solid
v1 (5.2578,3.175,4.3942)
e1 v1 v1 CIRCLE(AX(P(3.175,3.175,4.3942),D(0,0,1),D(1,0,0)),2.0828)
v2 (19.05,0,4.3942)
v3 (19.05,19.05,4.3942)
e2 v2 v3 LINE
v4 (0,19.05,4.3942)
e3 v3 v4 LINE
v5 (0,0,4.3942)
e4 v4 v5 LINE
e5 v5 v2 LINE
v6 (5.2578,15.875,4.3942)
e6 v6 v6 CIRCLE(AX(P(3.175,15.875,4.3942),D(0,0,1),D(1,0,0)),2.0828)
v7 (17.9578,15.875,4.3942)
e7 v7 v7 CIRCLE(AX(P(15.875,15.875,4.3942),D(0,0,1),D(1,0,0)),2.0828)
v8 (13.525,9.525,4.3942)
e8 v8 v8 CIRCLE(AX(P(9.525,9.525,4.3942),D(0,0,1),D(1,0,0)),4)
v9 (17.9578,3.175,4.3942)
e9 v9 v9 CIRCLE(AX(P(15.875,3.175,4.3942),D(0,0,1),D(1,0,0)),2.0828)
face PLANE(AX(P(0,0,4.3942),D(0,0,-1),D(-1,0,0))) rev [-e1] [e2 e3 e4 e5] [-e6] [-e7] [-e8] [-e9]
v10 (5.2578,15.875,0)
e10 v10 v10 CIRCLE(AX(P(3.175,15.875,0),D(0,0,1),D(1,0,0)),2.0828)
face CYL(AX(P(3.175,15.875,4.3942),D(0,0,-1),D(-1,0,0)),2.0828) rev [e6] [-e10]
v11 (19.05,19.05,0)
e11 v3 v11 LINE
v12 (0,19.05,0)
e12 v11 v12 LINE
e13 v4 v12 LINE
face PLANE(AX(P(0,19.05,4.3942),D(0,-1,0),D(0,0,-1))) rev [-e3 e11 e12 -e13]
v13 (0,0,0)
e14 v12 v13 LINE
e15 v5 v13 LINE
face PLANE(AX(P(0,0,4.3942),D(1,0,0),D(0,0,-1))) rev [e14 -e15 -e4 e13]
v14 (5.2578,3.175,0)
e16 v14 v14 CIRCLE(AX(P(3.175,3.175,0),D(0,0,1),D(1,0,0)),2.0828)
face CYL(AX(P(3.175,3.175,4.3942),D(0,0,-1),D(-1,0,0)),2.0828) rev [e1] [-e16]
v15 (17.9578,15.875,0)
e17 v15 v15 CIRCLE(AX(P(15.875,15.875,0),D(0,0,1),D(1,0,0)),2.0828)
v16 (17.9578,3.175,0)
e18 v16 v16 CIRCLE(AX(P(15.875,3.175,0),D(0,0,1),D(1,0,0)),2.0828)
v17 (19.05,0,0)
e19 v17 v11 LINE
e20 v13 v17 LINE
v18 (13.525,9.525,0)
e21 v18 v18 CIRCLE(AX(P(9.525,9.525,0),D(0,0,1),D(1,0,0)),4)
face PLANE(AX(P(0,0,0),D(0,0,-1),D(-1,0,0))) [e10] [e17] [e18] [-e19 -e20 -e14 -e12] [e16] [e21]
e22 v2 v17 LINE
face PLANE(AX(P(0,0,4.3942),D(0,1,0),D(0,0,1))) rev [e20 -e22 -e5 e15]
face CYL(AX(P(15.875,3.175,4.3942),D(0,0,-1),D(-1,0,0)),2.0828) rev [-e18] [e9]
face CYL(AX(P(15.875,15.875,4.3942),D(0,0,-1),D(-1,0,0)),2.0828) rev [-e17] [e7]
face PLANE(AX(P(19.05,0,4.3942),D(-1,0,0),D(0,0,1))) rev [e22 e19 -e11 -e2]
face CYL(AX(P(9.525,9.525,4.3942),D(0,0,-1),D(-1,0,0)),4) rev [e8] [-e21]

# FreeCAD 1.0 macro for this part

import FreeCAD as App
import Part
import Sketcher

V = App.Vector
Q = App.Units.Quantity

doc = App.newDocument("Part")
body = doc.addObject("PartDesign::Body", "Body")

# Sketch on XY plane
sketch1 = body.newObject("Sketcher::SketchObject", "Sketch")
sketch1.AttachmentSupport = (doc.getObject("XY_Plane"), [""])
sketch1.MapMode = "FlatFace"
sketch1.addGeometry(Part.LineSegment(V(0, 19.1, 0), V(0, 0, 0)), False)
sketch1.addGeometry(Part.LineSegment(V(0, 0, 0), V(19.1, 0, 0)), False)
sketch1.addGeometry(Part.LineSegment(V(19.1, 0, 0), V(19.1, 19.1, 0)), False)
sketch1.addGeometry(Part.LineSegment(V(19.1, 19.1, 0), V(0, 19.1, 0)), False)
sketch1.addGeometry(Part.Circle(V(3.2, 3.2, 0), V(0, 0, 1), 2.1), False)
sketch1.addGeometry(Part.Circle(V(15.9, 3.2, 0), V(0, 0, 1), 2.1), False)
sketch1.addGeometry(Part.Circle(V(3.2, 15.9, 0), V(0, 0, 1), 2.1), False)
sketch1.addGeometry(Part.Circle(V(9.5, 9.5, 0), V(0, 0, 1), 4), False)
sketch1.addGeometry(Part.Circle(V(15.9, 15.9, 0), V(0, 0, 1), 2.1), False)
sketch1.addConstraint(Sketcher.Constraint("Coincident", 0, 2, 1, 1))
sketch1.addConstraint(Sketcher.Constraint("Coincident", 1, 2, 2, 1))
sketch1.addConstraint(Sketcher.Constraint("Coincident", 2, 2, 3, 1))
sketch1.addConstraint(Sketcher.Constraint("Coincident", 3, 2, 0, 1))
sketch1.addConstraint(Sketcher.Constraint("Vertical", 0))
sketch1.addConstraint(Sketcher.Constraint("Horizontal", 1))
sketch1.addConstraint(Sketcher.Constraint("Vertical", 2))
sketch1.addConstraint(Sketcher.Constraint("Horizontal", 3))
sketch1.addConstraint(Sketcher.Constraint("Coincident", 0, 2, -1, 1))
sketch1.addConstraint(Sketcher.Constraint("Equal", 4, 5))
sketch1.addConstraint(Sketcher.Constraint("Equal", 5, 6))
sketch1.addConstraint(Sketcher.Constraint("Equal", 6, 8))
sketch1.addConstraint(Sketcher.Constraint("Horizontal", 4, 3, 5, 3))
sketch1.addConstraint(Sketcher.Constraint("Horizontal", 6, 3, 8, 3))
sketch1.addConstraint(Sketcher.Constraint("Vertical", 4, 3, 6, 3))
sketch1.addConstraint(Sketcher.Constraint("Vertical", 5, 3, 8, 3))
sketch1.addConstraint(Sketcher.Constraint("Equal", 3, 0))
sketch1.addConstraint(Sketcher.Constraint("Diameter", 4, Q("0.164 in")))
sketch1.addConstraint(Sketcher.Constraint("DistanceX", 1, 1, 1, 2, Q("0.75 in")))
sketch1.addConstraint(Sketcher.Constraint("DistanceX", 4, 3, 5, 3, Q("0.5 in")))
sketch1.addConstraint(Sketcher.Constraint("DistanceY", 4, 3, 6, 3, Q("0.5 in")))
sketch1.addConstraint(Sketcher.Constraint("Diameter", 7, 8.0))
sketch1.addConstraint(Sketcher.Constraint("DistanceX", 4, 3, 7, 3, Q("0.25 in")))
sketch1.addConstraint(Sketcher.Constraint("DistanceY", 4, 3, 7, 3, Q("0.25 in")))
sketch1.addConstraint(Sketcher.Constraint("DistanceX", -1, 1, 4, 3, Q("0.125 in")))
sketch1.addConstraint(Sketcher.Constraint("DistanceY", -1, 1, 4, 3, Q("0.125 in")))
pad1 = body.newObject("PartDesign::Pad", "Pad")
pad1.Profile = sketch1
pad1.Length = Q("0.173 in")

doc.recompute()
